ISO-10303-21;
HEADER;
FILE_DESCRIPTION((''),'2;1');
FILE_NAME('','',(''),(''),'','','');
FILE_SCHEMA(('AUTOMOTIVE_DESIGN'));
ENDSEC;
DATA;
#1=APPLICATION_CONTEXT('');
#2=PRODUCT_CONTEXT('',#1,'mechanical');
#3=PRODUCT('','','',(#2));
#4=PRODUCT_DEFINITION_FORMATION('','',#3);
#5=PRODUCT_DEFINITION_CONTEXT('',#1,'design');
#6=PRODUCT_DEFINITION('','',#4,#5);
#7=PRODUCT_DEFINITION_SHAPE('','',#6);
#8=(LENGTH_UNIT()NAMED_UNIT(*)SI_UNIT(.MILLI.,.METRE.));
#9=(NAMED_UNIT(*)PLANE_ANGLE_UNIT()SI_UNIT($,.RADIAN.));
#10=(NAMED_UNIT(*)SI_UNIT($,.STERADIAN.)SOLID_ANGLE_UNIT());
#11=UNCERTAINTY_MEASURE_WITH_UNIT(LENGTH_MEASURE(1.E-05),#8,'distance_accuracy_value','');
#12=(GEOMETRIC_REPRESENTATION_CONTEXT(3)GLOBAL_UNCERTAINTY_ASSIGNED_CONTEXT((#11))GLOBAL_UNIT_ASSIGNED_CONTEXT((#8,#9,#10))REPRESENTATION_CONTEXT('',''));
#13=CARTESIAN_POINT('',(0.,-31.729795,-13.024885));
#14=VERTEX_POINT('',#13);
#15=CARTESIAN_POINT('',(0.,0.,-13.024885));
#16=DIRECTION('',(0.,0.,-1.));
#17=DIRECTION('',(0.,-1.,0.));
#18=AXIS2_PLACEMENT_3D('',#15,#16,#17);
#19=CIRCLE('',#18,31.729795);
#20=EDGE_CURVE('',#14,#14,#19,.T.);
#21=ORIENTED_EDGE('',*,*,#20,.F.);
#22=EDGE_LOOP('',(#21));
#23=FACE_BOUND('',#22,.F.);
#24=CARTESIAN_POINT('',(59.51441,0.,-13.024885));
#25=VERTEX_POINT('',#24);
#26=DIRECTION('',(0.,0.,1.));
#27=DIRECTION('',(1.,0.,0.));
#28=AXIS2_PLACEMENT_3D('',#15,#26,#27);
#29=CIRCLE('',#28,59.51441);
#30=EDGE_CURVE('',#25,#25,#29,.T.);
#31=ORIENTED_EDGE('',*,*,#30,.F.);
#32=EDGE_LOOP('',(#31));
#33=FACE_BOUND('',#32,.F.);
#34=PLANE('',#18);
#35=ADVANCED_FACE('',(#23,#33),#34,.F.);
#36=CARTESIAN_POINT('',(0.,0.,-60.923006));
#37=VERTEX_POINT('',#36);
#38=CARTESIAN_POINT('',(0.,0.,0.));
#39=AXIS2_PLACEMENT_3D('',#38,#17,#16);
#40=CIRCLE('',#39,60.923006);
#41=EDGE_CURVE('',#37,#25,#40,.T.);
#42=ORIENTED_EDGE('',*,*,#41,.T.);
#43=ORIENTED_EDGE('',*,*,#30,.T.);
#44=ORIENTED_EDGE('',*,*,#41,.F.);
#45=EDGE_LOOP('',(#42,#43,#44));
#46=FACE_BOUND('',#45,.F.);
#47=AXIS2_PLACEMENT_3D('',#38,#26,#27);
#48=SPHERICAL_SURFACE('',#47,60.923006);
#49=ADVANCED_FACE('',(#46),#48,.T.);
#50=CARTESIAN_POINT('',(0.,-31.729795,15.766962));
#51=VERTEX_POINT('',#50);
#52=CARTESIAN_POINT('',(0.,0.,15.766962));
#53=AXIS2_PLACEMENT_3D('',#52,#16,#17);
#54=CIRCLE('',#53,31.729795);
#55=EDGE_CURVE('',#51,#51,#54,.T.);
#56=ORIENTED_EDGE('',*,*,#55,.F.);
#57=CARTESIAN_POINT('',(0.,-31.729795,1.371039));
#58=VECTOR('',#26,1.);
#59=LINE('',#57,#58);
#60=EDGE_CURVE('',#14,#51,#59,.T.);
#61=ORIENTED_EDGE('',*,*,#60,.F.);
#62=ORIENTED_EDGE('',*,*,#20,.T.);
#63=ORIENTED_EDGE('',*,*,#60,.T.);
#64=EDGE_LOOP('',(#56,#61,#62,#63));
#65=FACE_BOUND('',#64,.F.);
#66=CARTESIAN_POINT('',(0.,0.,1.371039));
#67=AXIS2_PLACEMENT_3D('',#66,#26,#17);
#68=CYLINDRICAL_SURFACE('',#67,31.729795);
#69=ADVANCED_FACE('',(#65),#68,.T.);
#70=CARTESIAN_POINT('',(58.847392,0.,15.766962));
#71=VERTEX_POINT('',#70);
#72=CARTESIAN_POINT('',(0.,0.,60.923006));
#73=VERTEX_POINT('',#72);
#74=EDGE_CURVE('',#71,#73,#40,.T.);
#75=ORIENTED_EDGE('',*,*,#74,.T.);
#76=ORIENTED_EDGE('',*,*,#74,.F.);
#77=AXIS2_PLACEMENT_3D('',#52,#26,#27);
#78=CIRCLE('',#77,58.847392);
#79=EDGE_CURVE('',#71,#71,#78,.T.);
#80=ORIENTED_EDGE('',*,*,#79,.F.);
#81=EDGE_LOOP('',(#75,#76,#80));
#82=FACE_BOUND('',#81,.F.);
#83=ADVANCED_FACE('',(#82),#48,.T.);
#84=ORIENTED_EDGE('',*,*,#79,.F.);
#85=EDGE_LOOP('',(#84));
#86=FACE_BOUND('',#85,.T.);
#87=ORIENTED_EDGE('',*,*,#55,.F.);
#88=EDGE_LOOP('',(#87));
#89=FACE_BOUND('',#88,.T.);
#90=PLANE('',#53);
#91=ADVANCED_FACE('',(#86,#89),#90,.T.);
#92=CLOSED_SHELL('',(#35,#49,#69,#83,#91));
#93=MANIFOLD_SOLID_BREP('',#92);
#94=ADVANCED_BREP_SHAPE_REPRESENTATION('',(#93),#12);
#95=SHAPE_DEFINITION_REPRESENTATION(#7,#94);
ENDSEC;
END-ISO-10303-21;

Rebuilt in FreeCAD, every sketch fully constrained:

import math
import FreeCAD as App
import Part
import Sketcher

V = App.Vector

doc = App.newDocument("Part")
body = doc.addObject("PartDesign::Body", "Body")

sketch1 = body.newObject("Sketcher::SketchObject", "Sketch")
sketch1.AttachmentSupport = (doc.getObject("XZ_Plane"), [""])
sketch1.MapMode = "FlatFace"
sketch1.addGeometry([
    Part.LineSegment(V(0, 61, 0), V(0, -61, 0)),
    Part.ArcOfCircle(Part.Circle(V(0, 0, 0), V(0, 0, 1), 61), math.radians(-90), math.radians(90)),
], False)
sketch1.addConstraint([
    Sketcher.Constraint("Coincident", 0, 1, 1, 2),
    Sketcher.Constraint("Coincident", 1, 1, 0, 2),
    Sketcher.Constraint("Vertical", 0),
    Sketcher.Constraint("Coincident", 1, 3, -1, 1),
    Sketcher.Constraint("PointOnObject", 0, 1, -2),
    Sketcher.Constraint("Radius", 1, 60.923006),
])
revolution = body.newObject("PartDesign::Revolution", "Revolution")
revolution.Profile = sketch1
revolution.ReferenceAxis = (sketch1, ["V_Axis"])
revolution.Angle = 360

sketch2 = body.newObject("Sketcher::SketchObject", "Sketch001")
sketch2.AttachmentSupport = (doc.getObject("YZ_Plane"), [""])
sketch2.MapMode = "FlatFace"
sketch2.addGeometry([
    Part.LineSegment(V(-87, 16, 0), V(-87, -13, 0)),
    Part.LineSegment(V(-87, -13, 0), V(-32, -13, 0)),
    Part.LineSegment(V(-32, -13, 0), V(-32, 16, 0)),
    Part.LineSegment(V(-32, 16, 0), V(-87, 16, 0)),
], False)
sketch2.addConstraint([
    Sketcher.Constraint("Coincident", 0, 2, 1, 1),
    Sketcher.Constraint("Coincident", 1, 2, 2, 1),
    Sketcher.Constraint("Coincident", 2, 2, 3, 1),
    Sketcher.Constraint("Coincident", 3, 2, 0, 1),
    Sketcher.Constraint("Vertical", 0),
    Sketcher.Constraint("Horizontal", 1),
    Sketcher.Constraint("Vertical", 2),
    Sketcher.Constraint("Horizontal", 3),
    Sketcher.Constraint("DistanceX", 1, 1, 1, 2, 55.233344),
    Sketcher.Constraint("DistanceY", 0, 2, 0, 1, 28.791847),
    Sketcher.Constraint("DistanceX", 0, 2, -1, 1, 86.963139),
    Sketcher.Constraint("DistanceY", 0, 2, -1, 1, 13.024885),
])
groove = body.newObject("PartDesign::Groove", "Groove")
groove.Profile = sketch2
groove.ReferenceAxis = (sketch2, ["V_Axis"])
groove.Angle = 360

doc.recompute()
